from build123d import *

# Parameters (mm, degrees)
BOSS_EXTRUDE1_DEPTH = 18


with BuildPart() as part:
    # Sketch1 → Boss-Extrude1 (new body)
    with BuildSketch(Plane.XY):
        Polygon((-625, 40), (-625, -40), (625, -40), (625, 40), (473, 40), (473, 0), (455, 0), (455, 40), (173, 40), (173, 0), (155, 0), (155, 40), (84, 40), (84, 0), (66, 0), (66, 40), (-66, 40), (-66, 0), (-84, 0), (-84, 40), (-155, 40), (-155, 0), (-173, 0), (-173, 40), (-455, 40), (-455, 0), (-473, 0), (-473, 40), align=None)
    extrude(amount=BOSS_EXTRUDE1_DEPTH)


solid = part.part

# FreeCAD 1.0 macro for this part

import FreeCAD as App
import Part
import Sketcher

V = App.Vector


def add_polygon(sketch, points):
    """Adds a closed chain of lines whose ends are joined by coincident constraints."""
    first, n = sketch.GeometryCount, len(points)
    for a, b in zip(points, points[1:] + points[:1]):
        sketch.addGeometry(Part.LineSegment(App.Vector(*a, 0), App.Vector(*b, 0)), False)
    for i in range(n):
        sketch.addConstraint(Sketcher.Constraint("Coincident", first + i, 2, first + (i + 1) % n, 1))

doc = App.newDocument("Part")
body = doc.addObject("PartDesign::Body", "Body")

# Sketch on XY plane
sketch1 = doc.addObject("Sketcher::SketchObject", "Sketch")
body.addObject(sketch1)
sketch1.AttachmentSupport = (doc.XY_Plane, [""])
sketch1.MapMode = "FlatFace"
add_polygon(sketch1, [(-625, 40), (-625, -40), (625, -40), (625, 40), (473, 40), (473, 0), (455, 0), (455, 40), (173, 40), (173, 0), (155, 0), (155, 40), (84, 40), (84, 0), (66, 0), (66, 40), (-66, 40), (-66, 0), (-84, 0), (-84, 40), (-155, 40), (-155, 0), (-173, 0), (-173, 40), (-455, 40), (-455, 0), (-473, 0), (-473, 40)])  # lines 0-27
sketch1.addConstraint([
    Sketcher.Constraint("Vertical", 0),
    Sketcher.Constraint("Horizontal", 1),
    Sketcher.Constraint("Vertical", 2),
    Sketcher.Constraint("Horizontal", 3),
    Sketcher.Constraint("Vertical", 4),
    Sketcher.Constraint("Horizontal", 5),
    Sketcher.Constraint("Vertical", 6),
    Sketcher.Constraint("Horizontal", 7),
    Sketcher.Constraint("Vertical", 8),
    Sketcher.Constraint("Horizontal", 9),
    Sketcher.Constraint("Vertical", 10),
    Sketcher.Constraint("Horizontal", 11),
    Sketcher.Constraint("Vertical", 12),
    Sketcher.Constraint("Horizontal", 13),
    Sketcher.Constraint("Vertical", 14),
    Sketcher.Constraint("Horizontal", 15),
    Sketcher.Constraint("Vertical", 16),
    Sketcher.Constraint("Horizontal", 17),
    Sketcher.Constraint("Vertical", 18),
    Sketcher.Constraint("Horizontal", 19),
    Sketcher.Constraint("Vertical", 20),
    Sketcher.Constraint("Horizontal", 21),
    Sketcher.Constraint("Vertical", 22),
    Sketcher.Constraint("Horizontal", 23),
    Sketcher.Constraint("Vertical", 24),
    Sketcher.Constraint("Horizontal", 25),
    Sketcher.Constraint("Vertical", 26),
    Sketcher.Constraint("Horizontal", 27),
    Sketcher.Constraint("Symmetric", 0, 2, 2, 2, -1, 1),
    Sketcher.Constraint("Symmetric", 13, 2, 16, 2, -1, 1),
    Sketcher.Constraint("Symmetric", 9, 2, 20, 2, -1, 1),
    Sketcher.Constraint("Symmetric", 5, 2, 24, 2, -1, 1),
    Sketcher.Constraint("Symmetric", 12, 2, 17, 2, -2),
    Sketcher.Constraint("Symmetric", 8, 2, 21, 2, -2),
    Sketcher.Constraint("Symmetric", 4, 2, 25, 2, -2),
    Sketcher.Constraint("Horizontal", 3, 2, 6, 2),
    Sketcher.Constraint("Horizontal", 7, 2, 10, 2),
    Sketcher.Constraint("Horizontal", 11, 2, 14, 2),
    Sketcher.Constraint("Horizontal", 15, 2, 18, 2),
    Sketcher.Constraint("Horizontal", 19, 2, 22, 2),
    Sketcher.Constraint("Horizontal", 23, 2, 26, 2),
    Sketcher.Constraint("Equal", 5, 9),
    Sketcher.Constraint("Equal", 9, 13),
    Sketcher.Constraint("DistanceX", 1, 1, 1, 2, 1250.0),
    Sketcher.Constraint("DistanceX", 3, 2, 3, 1, 152.0),
    Sketcher.Constraint("DistanceX", 5, 2, 5, 1, 18.0),
    Sketcher.Constraint("DistanceX", 7, 2, 7, 1, 282.0),
    Sketcher.Constraint("DistanceX", 11, 2, 11, 1, 71.0),
    Sketcher.Constraint("DistanceY", 0, 2, 0, 1, 80.0),
])
pad1 = doc.addObject("PartDesign::Pad", "Pad")
body.addObject(pad1)
pad1.Profile = sketch1
pad1.Length = 18

doc.recompute()
